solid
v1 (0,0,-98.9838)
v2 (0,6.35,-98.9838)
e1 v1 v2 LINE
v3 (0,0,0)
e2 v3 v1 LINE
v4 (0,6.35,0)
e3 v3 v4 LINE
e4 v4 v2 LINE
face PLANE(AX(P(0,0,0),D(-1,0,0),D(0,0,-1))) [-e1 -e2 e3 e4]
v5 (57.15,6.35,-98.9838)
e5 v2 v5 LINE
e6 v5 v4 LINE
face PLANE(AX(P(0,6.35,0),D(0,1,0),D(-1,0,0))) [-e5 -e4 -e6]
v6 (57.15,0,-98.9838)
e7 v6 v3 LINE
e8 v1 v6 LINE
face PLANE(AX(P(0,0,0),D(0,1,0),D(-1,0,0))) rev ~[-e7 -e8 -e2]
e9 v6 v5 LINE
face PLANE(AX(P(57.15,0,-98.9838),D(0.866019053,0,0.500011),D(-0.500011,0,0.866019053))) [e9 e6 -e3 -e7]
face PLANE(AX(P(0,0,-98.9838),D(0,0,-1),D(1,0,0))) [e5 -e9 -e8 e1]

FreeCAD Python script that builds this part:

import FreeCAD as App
import Part
import Sketcher
from FreeCAD import Vector
Q = App.Units.Quantity

doc = App.newDocument("Part")
body = doc.addObject("PartDesign::Body", "Body")

# Sketch on XZ plane
sketch1 = doc.addObject("Sketcher::SketchObject", "Sketch")
body.addObject(sketch1)
sketch1.AttachmentSupport = (doc.XZ_Plane, [""])
sketch1.MapMode = "FlatFace"
sketch1.addGeometry(Part.LineSegment(Vector(0, -99, 0), Vector(0, 0, 0)), False)
sketch1.addGeometry(Part.LineSegment(Vector(0, 0, 0), Vector(57, -99, 0)), False)
sketch1.addGeometry(Part.LineSegment(Vector(57, -99, 0), Vector(0, -99, 0)), False)
sketch1.addConstraint(Sketcher.Constraint("Coincident", 0, 2, 1, 1))
sketch1.addConstraint(Sketcher.Constraint("Coincident", 1, 2, 2, 1))
sketch1.addConstraint(Sketcher.Constraint("Coincident", 2, 2, 0, 1))
sketch1.addConstraint(Sketcher.Constraint("Vertical", 0))
sketch1.addConstraint(Sketcher.Constraint("Horizontal", 2))
sketch1.addConstraint(Sketcher.Constraint("Coincident", 0, 2, -1, 1))
sketch1.addConstraint(Sketcher.Constraint("DistanceX", 2, 2, 2, 1, Q("2.25 in")))
sketch1.addConstraint(Sketcher.Constraint("DistanceY", 0, 1, 0, 2, Q("3.897 in")))
pad1 = doc.addObject("PartDesign::Pad", "Pad")
body.addObject(pad1)
pad1.Profile = sketch1
pad1.Length = Q("0.25 in")
pad1.Reversed = True

doc.recompute()
